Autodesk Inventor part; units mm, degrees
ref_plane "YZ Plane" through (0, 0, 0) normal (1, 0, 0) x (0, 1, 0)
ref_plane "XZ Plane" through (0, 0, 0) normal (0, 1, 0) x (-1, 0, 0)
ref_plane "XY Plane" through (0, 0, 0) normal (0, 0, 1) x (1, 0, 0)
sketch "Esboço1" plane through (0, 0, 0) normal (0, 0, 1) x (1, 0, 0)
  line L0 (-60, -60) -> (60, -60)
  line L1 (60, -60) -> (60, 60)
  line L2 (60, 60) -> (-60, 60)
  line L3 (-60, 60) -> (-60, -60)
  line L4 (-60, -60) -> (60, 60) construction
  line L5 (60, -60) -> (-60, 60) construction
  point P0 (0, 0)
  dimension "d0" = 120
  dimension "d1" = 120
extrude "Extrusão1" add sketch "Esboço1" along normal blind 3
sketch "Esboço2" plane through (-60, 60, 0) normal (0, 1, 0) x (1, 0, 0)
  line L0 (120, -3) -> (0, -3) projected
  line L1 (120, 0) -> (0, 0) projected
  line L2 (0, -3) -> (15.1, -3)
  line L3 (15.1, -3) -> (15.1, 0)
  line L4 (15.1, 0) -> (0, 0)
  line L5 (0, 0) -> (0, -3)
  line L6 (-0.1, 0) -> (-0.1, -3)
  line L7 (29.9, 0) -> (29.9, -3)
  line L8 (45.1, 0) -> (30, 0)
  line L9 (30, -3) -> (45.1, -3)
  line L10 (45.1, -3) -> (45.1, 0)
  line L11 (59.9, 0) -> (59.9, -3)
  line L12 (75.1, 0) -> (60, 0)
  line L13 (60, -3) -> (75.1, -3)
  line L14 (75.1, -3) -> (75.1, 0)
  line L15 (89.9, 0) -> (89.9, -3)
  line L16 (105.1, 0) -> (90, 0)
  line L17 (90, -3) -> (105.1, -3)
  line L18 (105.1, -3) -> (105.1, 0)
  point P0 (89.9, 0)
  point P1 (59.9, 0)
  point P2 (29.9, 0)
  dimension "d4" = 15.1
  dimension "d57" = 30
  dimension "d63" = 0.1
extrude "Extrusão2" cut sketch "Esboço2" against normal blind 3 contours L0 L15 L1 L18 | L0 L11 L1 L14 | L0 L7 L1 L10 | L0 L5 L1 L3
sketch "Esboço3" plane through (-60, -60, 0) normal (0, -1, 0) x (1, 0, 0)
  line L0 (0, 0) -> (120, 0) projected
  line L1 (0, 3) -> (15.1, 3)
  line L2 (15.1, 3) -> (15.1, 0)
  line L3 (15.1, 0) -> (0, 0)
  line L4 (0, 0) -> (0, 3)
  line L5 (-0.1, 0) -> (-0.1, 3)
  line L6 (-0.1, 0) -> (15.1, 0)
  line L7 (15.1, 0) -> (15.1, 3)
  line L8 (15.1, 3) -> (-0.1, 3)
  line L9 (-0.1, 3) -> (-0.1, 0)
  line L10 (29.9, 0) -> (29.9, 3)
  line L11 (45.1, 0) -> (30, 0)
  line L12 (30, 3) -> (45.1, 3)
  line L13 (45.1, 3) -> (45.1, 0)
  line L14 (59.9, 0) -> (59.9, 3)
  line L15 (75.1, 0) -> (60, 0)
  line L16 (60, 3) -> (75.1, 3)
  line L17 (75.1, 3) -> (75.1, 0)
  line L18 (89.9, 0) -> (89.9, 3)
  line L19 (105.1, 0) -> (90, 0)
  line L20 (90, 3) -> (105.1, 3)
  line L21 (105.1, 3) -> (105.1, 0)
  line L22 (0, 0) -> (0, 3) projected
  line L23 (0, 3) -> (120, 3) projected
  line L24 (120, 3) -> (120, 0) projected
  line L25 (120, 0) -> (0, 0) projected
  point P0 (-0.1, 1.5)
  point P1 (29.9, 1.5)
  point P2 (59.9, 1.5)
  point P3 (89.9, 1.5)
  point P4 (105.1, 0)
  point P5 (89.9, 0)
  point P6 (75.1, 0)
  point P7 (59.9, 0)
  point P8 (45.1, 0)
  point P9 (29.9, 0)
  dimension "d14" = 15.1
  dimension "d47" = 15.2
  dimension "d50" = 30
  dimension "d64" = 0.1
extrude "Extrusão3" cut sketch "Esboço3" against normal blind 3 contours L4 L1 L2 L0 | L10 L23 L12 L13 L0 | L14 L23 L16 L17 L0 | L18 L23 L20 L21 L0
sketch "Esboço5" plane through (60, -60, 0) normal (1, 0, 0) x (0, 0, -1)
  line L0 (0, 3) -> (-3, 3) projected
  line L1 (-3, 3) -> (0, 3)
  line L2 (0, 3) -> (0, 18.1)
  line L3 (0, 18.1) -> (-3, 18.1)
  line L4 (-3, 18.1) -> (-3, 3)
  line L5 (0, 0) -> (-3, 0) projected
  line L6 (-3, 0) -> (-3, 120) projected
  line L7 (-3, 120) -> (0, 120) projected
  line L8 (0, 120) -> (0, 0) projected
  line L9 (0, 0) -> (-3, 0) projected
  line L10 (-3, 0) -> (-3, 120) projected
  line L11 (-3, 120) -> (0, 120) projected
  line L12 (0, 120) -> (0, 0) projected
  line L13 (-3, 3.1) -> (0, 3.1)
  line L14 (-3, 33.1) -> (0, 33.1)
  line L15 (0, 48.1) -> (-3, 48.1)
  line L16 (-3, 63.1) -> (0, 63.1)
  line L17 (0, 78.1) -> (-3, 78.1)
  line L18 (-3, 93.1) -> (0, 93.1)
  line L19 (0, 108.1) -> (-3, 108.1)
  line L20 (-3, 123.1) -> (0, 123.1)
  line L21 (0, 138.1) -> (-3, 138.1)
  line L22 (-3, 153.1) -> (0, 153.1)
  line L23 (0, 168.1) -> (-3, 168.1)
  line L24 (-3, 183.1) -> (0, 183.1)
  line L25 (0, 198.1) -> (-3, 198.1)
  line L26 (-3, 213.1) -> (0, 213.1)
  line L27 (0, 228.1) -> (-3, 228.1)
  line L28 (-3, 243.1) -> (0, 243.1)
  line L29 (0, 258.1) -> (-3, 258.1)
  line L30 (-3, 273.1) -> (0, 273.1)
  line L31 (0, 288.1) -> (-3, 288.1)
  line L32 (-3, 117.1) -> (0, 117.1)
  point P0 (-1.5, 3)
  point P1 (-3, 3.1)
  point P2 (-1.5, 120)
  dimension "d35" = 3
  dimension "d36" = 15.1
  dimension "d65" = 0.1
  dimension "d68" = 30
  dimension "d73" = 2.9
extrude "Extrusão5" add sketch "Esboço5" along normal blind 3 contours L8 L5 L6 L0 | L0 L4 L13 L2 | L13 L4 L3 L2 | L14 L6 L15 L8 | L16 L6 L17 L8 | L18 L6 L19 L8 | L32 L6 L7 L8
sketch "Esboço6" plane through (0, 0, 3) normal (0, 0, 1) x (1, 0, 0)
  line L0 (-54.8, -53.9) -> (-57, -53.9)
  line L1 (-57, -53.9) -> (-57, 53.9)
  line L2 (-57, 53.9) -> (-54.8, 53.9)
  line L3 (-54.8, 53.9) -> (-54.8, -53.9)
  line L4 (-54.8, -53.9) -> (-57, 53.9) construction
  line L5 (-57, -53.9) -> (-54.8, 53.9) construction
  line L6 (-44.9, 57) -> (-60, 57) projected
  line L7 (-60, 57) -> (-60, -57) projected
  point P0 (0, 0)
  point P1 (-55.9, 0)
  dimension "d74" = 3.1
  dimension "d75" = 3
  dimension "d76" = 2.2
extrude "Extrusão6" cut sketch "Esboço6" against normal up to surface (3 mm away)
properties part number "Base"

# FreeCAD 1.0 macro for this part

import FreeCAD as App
import Part
import Sketcher

V = App.Vector
Q = App.Units.Quantity

doc = App.newDocument("Part")
body = doc.addObject("PartDesign::Body", "Body")

# Sketch on XY plane
sketch1 = body.newObject("Sketcher::SketchObject", "Sketch")
sketch1.AttachmentSupport = (doc.getObject("XY_Plane"), [""])
sketch1.MapMode = "FlatFace"
sketch1.addGeometry([
    Part.LineSegment(V(-60, 60, 0), V(-60, -60, 0)),
    Part.LineSegment(V(-60, -60, 0), V(60, -60, 0)),
    Part.LineSegment(V(60, -60, 0), V(60, 60, 0)),
    Part.LineSegment(V(60, 60, 0), V(-60, 60, 0)),
], False)
sketch1.addConstraint([
    Sketcher.Constraint("Coincident", 0, 2, 1, 1),
    Sketcher.Constraint("Coincident", 1, 2, 2, 1),
    Sketcher.Constraint("Coincident", 2, 2, 3, 1),
    Sketcher.Constraint("Coincident", 3, 2, 0, 1),
    Sketcher.Constraint("Vertical", 0),
    Sketcher.Constraint("Horizontal", 1),
    Sketcher.Constraint("Vertical", 2),
    Sketcher.Constraint("Horizontal", 3),
    Sketcher.Constraint("Symmetric", 0, 2, 2, 2, -1, 1),
    Sketcher.Constraint("Equal", 3, 0),
    Sketcher.Constraint("DistanceX", 1, 1, 1, 2, Q("120 mm")),
])
pad1 = body.newObject("PartDesign::Pad", "Pad")
pad1.Profile = sketch1
pad1.Length = 3

# Sketch on XZ plane
sketch2 = body.newObject("Sketcher::SketchObject", "Sketch001")
sketch2.AttachmentSupport = (doc.getObject("XZ_Plane"), [""])
sketch2.MapMode = "FlatFace"
sketch2.AttachmentOffset = App.Placement(V(0, 0, -60), App.Rotation())
sketch2.addGeometry([
    Part.LineSegment(V(29.9, 3, 0), V(45.1, 3, 0)),  # 0
    Part.LineSegment(V(45.1, 3, 0), V(45.1, 0, 0)),  # 1
    Part.LineSegment(V(45.1, 0, 0), V(29.9, 0, 0)),  # 2
    Part.LineSegment(V(29.9, 0, 0), V(29.9, 3, 0)),  # 3
    Part.LineSegment(V(-0.1, 3, 0), V(15.1, 3, 0)),  # 4
    Part.LineSegment(V(15.1, 3, 0), V(15.1, 0, 0)),  # 5
    Part.LineSegment(V(15.1, 0, 0), V(-0.1, 0, 0)),  # 6
    Part.LineSegment(V(-0.1, 0, 0), V(-0.1, 3, 0)),  # 7
    Part.LineSegment(V(-30.1, 3, 0), V(-14.9, 3, 0)),  # 8
    Part.LineSegment(V(-14.9, 3, 0), V(-14.9, 0, 0)),  # 9
    Part.LineSegment(V(-14.9, 0, 0), V(-30.1, 0, 0)),  # 10
    Part.LineSegment(V(-30.1, 0, 0), V(-30.1, 3, 0)),  # 11
    Part.LineSegment(V(-60, 3, 0), V(-44.9, 3, 0)),  # 12
    Part.LineSegment(V(-44.9, 3, 0), V(-44.9, 0, 0)),  # 13
    Part.LineSegment(V(-44.9, 0, 0), V(-60, 0, 0)),  # 14
    Part.LineSegment(V(-60, 0, 0), V(-60, 3, 0)),  # 15
], False)
sketch2.addConstraint([
    Sketcher.Constraint("Coincident", 0, 2, 1, 1),
    Sketcher.Constraint("Coincident", 1, 2, 2, 1),
    Sketcher.Constraint("Coincident", 2, 2, 3, 1),
    Sketcher.Constraint("Coincident", 3, 2, 0, 1),
    Sketcher.Constraint("Coincident", 4, 2, 5, 1),
    Sketcher.Constraint("Coincident", 5, 2, 6, 1),
    Sketcher.Constraint("Coincident", 6, 2, 7, 1),
    Sketcher.Constraint("Coincident", 7, 2, 4, 1),
    Sketcher.Constraint("Coincident", 8, 2, 9, 1),
    Sketcher.Constraint("Coincident", 9, 2, 10, 1),
    Sketcher.Constraint("Coincident", 10, 2, 11, 1),
    Sketcher.Constraint("Coincident", 11, 2, 8, 1),
    Sketcher.Constraint("Coincident", 12, 2, 13, 1),
    Sketcher.Constraint("Coincident", 13, 2, 14, 1),
    Sketcher.Constraint("Coincident", 14, 2, 15, 1),
    Sketcher.Constraint("Coincident", 15, 2, 12, 1),
    Sketcher.Constraint("Horizontal", 0),
    Sketcher.Constraint("Vertical", 1),
    Sketcher.Constraint("Horizontal", 2),
    Sketcher.Constraint("Vertical", 3),
    Sketcher.Constraint("Horizontal", 4),
    Sketcher.Constraint("Vertical", 5),
    Sketcher.Constraint("Horizontal", 6),
    Sketcher.Constraint("Vertical", 7),
    Sketcher.Constraint("Horizontal", 8),
    Sketcher.Constraint("Vertical", 9),
    Sketcher.Constraint("Horizontal", 10),
    Sketcher.Constraint("Vertical", 11),
    Sketcher.Constraint("Horizontal", 12),
    Sketcher.Constraint("Vertical", 13),
    Sketcher.Constraint("Horizontal", 14),
    Sketcher.Constraint("Vertical", 15),
    Sketcher.Constraint("PointOnObject", 1, 2, -1),
    Sketcher.Constraint("PointOnObject", 5, 2, -1),
    Sketcher.Constraint("PointOnObject", 9, 2, -1),
    Sketcher.Constraint("PointOnObject", 13, 2, -1),
    Sketcher.Constraint("Horizontal", 3, 2, 4, 2),
    Sketcher.Constraint("Horizontal", 7, 2, 8, 2),
    Sketcher.Constraint("Horizontal", 11, 2, 12, 2),
    Sketcher.Constraint("Equal", 2, 4),
    Sketcher.Constraint("Equal", 6, 8),
    Sketcher.Constraint("DistanceX", 12, 1, 12, 2, Q("15.1 mm")),
    Sketcher.Constraint("DistanceX", 4, 2, 0, 2, Q("30 mm")),
    Sketcher.Constraint("DistanceX", 8, 2, 4, 2, Q("30 mm")),
    Sketcher.Constraint("DistanceX", 12, 2, 8, 2, Q("30 mm")),
    Sketcher.Constraint("DistanceX", -1, 1, 4, 2, Q("15.1 mm")),
    Sketcher.Constraint("DistanceX", 6, 2, -1, 1, Q("0.1 mm")),
    Sketcher.Constraint("DistanceY", 1, 2, 1, 1, Q("3 mm")),
])
pocket1 = body.newObject("PartDesign::Pocket", "Pocket")
pocket1.Profile = sketch2
pocket1.Length = 3
pocket1.Reversed = True

# Sketch on XZ plane
sketch3 = body.newObject("Sketcher::SketchObject", "Sketch002")
sketch3.AttachmentSupport = (doc.getObject("XZ_Plane"), [""])
sketch3.MapMode = "FlatFace"
sketch3.AttachmentOffset = App.Placement(V(0, 0, 60), App.Rotation())
sketch3.addGeometry([
    Part.LineSegment(V(-60, 3, 0), V(-60, 0, 0)),  # 0
    Part.LineSegment(V(-60, 0, 0), V(-44.9, 0, 0)),  # 1
    Part.LineSegment(V(-44.9, 0, 0), V(-44.9, 3, 0)),  # 2
    Part.LineSegment(V(-44.9, 3, 0), V(-60, 3, 0)),  # 3
    Part.LineSegment(V(-30.1, 3, 0), V(-30.1, 0, 0)),  # 4
    Part.LineSegment(V(-30.1, 0, 0), V(-14.9, 0, 0)),  # 5
    Part.LineSegment(V(-14.9, 0, 0), V(-14.9, 3, 0)),  # 6
    Part.LineSegment(V(-14.9, 3, 0), V(-30.1, 3, 0)),  # 7
    Part.LineSegment(V(-0.1, 3, 0), V(-0.1, 0, 0)),  # 8
    Part.LineSegment(V(-0.1, 0, 0), V(15.1, 0, 0)),  # 9
    Part.LineSegment(V(15.1, 0, 0), V(15.1, 3, 0)),  # 10
    Part.LineSegment(V(15.1, 3, 0), V(-0.1, 3, 0)),  # 11
    Part.LineSegment(V(29.9, 3, 0), V(29.9, 0, 0)),  # 12
    Part.LineSegment(V(29.9, 0, 0), V(45.1, 0, 0)),  # 13
    Part.LineSegment(V(45.1, 0, 0), V(45.1, 3, 0)),  # 14
    Part.LineSegment(V(45.1, 3, 0), V(29.9, 3, 0)),  # 15
], False)
sketch3.addConstraint([
    Sketcher.Constraint("Coincident", 0, 2, 1, 1),
    Sketcher.Constraint("Coincident", 1, 2, 2, 1),
    Sketcher.Constraint("Coincident", 2, 2, 3, 1),
    Sketcher.Constraint("Coincident", 3, 2, 0, 1),
    Sketcher.Constraint("Coincident", 4, 2, 5, 1),
    Sketcher.Constraint("Coincident", 5, 2, 6, 1),
    Sketcher.Constraint("Coincident", 6, 2, 7, 1),
    Sketcher.Constraint("Coincident", 7, 2, 4, 1),
    Sketcher.Constraint("Coincident", 8, 2, 9, 1),
    Sketcher.Constraint("Coincident", 9, 2, 10, 1),
    Sketcher.Constraint("Coincident", 10, 2, 11, 1),
    Sketcher.Constraint("Coincident", 11, 2, 8, 1),
    Sketcher.Constraint("Coincident", 12, 2, 13, 1),
    Sketcher.Constraint("Coincident", 13, 2, 14, 1),
    Sketcher.Constraint("Coincident", 14, 2, 15, 1),
    Sketcher.Constraint("Coincident", 15, 2, 12, 1),
    Sketcher.Constraint("Vertical", 0),
    Sketcher.Constraint("Horizontal", 1),
    Sketcher.Constraint("Vertical", 2),
    Sketcher.Constraint("Horizontal", 3),
    Sketcher.Constraint("Vertical", 4),
    Sketcher.Constraint("Horizontal", 5),
    Sketcher.Constraint("Vertical", 6),
    Sketcher.Constraint("Horizontal", 7),
    Sketcher.Constraint("Vertical", 8),
    Sketcher.Constraint("Horizontal", 9),
    Sketcher.Constraint("Vertical", 10),
    Sketcher.Constraint("Horizontal", 11),
    Sketcher.Constraint("Vertical", 12),
    Sketcher.Constraint("Horizontal", 13),
    Sketcher.Constraint("Vertical", 14),
    Sketcher.Constraint("Horizontal", 15),
    Sketcher.Constraint("PointOnObject", 0, 2, -1),
    Sketcher.Constraint("PointOnObject", 4, 2, -1),
    Sketcher.Constraint("PointOnObject", 8, 2, -1),
    Sketcher.Constraint("PointOnObject", 12, 2, -1),
    Sketcher.Constraint("Horizontal", 3, 2, 6, 2),
    Sketcher.Constraint("Horizontal", 7, 2, 10, 2),
    Sketcher.Constraint("Horizontal", 11, 2, 14, 2),
    Sketcher.Constraint("Equal", 7, 9),
    Sketcher.Constraint("Equal", 11, 13),
    Sketcher.Constraint("DistanceX", 1, 1, 1, 2, Q("15.1 mm")),
    Sketcher.Constraint("DistanceX", 5, 1, 5, 2, Q("15.2 mm")),
    Sketcher.Constraint("DistanceX", 1, 2, 5, 2, Q("30 mm")),
    Sketcher.Constraint("DistanceX", 4, 2, 8, 2, Q("30 mm")),
    Sketcher.Constraint("DistanceX", 8, 2, 12, 2, Q("30 mm")),
    Sketcher.Constraint("DistanceX", 8, 2, -1, 1, Q("0.1 mm")),
    Sketcher.Constraint("DistanceY", 0, 2, 0, 1, Q("3 mm")),
])
pocket2 = body.newObject("PartDesign::Pocket", "Pocket001")
pocket2.Profile = sketch3
pocket2.Length = 3

# Sketch on YZ plane
sketch4 = body.newObject("Sketcher::SketchObject", "Sketch003")
sketch4.AttachmentSupport = (doc.getObject("YZ_Plane"), [""])
sketch4.MapMode = "FlatFace"
sketch4.AttachmentOffset = App.Placement(V(0, 0, 60), App.Rotation())
sketch4.addGeometry([
    Part.LineSegment(V(-60, 0, 0), V(-41.9, 0, 0)),  # 0
    Part.LineSegment(V(-41.9, 0, 0), V(-41.9, 3, 0)),  # 1
    Part.LineSegment(V(-41.9, 3, 0), V(-60, 3, 0)),  # 2
    Part.LineSegment(V(-60, 3, 0), V(-60, 0, 0)),  # 3
    Part.LineSegment(V(-26.9, 3, 0), V(-26.9, 0, 0)),  # 4
    Part.LineSegment(V(-26.9, 0, 0), V(-11.9, 0, 0)),  # 5
    Part.LineSegment(V(-11.9, 0, 0), V(-11.9, 3, 0)),  # 6
    Part.LineSegment(V(-11.9, 3, 0), V(-26.9, 3, 0)),  # 7
    Part.LineSegment(V(3.1, 3, 0), V(3.1, 0, 0)),  # 8
    Part.LineSegment(V(3.1, 0, 0), V(18.1, 0, 0)),  # 9
    Part.LineSegment(V(18.1, 0, 0), V(18.1, 3, 0)),  # 10
    Part.LineSegment(V(18.1, 3, 0), V(3.1, 3, 0)),  # 11
    Part.LineSegment(V(33.1, 3, 0), V(33.1, 0, 0)),  # 12
    Part.LineSegment(V(33.1, 0, 0), V(48.1, 0, 0)),  # 13
    Part.LineSegment(V(48.1, 0, 0), V(48.1, 3, 0)),  # 14
    Part.LineSegment(V(48.1, 3, 0), V(33.1, 3, 0)),  # 15
    Part.LineSegment(V(57.1, 3, 0), V(57.1, 0, 0)),  # 16
    Part.LineSegment(V(57.1, 0, 0), V(60, 0, 0)),  # 17
    Part.LineSegment(V(60, 0, 0), V(60, 3, 0)),  # 18
    Part.LineSegment(V(60, 3, 0), V(57.1, 3, 0)),  # 19
], False)
sketch4.addConstraint([
    Sketcher.Constraint("Coincident", 0, 2, 1, 1),
    Sketcher.Constraint("Coincident", 1, 2, 2, 1),
    Sketcher.Constraint("Coincident", 2, 2, 3, 1),
    Sketcher.Constraint("Coincident", 3, 2, 0, 1),
    Sketcher.Constraint("Coincident", 4, 2, 5, 1),
    Sketcher.Constraint("Coincident", 5, 2, 6, 1),
    Sketcher.Constraint("Coincident", 6, 2, 7, 1),
    Sketcher.Constraint("Coincident", 7, 2, 4, 1),
    Sketcher.Constraint("Coincident", 8, 2, 9, 1),
    Sketcher.Constraint("Coincident", 9, 2, 10, 1),
    Sketcher.Constraint("Coincident", 10, 2, 11, 1),
    Sketcher.Constraint("Coincident", 11, 2, 8, 1),
    Sketcher.Constraint("Coincident", 12, 2, 13, 1),
    Sketcher.Constraint("Coincident", 13, 2, 14, 1),
    Sketcher.Constraint("Coincident", 14, 2, 15, 1),
    Sketcher.Constraint("Coincident", 15, 2, 12, 1),
    Sketcher.Constraint("Coincident", 16, 2, 17, 1),
    Sketcher.Constraint("Coincident", 17, 2, 18, 1),
    Sketcher.Constraint("Coincident", 18, 2, 19, 1),
    Sketcher.Constraint("Coincident", 19, 2, 16, 1),
    Sketcher.Constraint("Horizontal", 0),
    Sketcher.Constraint("Vertical", 1),
    Sketcher.Constraint("Horizontal", 2),
    Sketcher.Constraint("Vertical", 3),
    Sketcher.Constraint("Vertical", 4),
    Sketcher.Constraint("Horizontal", 5),
    Sketcher.Constraint("Vertical", 6),
    Sketcher.Constraint("Horizontal", 7),
    Sketcher.Constraint("Vertical", 8),
    Sketcher.Constraint("Horizontal", 9),
    Sketcher.Constraint("Vertical", 10),
    Sketcher.Constraint("Horizontal", 11),
    Sketcher.Constraint("Vertical", 12),
    Sketcher.Constraint("Horizontal", 13),
    Sketcher.Constraint("Vertical", 14),
    Sketcher.Constraint("Horizontal", 15),
    Sketcher.Constraint("Vertical", 16),
    Sketcher.Constraint("Horizontal", 17),
    Sketcher.Constraint("Vertical", 18),
    Sketcher.Constraint("Horizontal", 19),
    Sketcher.Constraint("Symmetric", 3, 2, 17, 2, -1, 1),
    Sketcher.Constraint("PointOnObject", 0, 2, -1),
    Sketcher.Constraint("PointOnObject", 4, 2, -1),
    Sketcher.Constraint("PointOnObject", 8, 2, -1),
    Sketcher.Constraint("PointOnObject", 12, 2, -1),
    Sketcher.Constraint("Horizontal", 2, 2, 6, 2),
    Sketcher.Constraint("Horizontal", 7, 2, 10, 2),
    Sketcher.Constraint("Horizontal", 11, 2, 14, 2),
    Sketcher.Constraint("Horizontal", 15, 2, 18, 2),
    Sketcher.Constraint("Equal", 7, 9),
    Sketcher.Constraint("Equal", 11, 13),
    Sketcher.Constraint("DistanceY", 1, 1, 1, 2, Q("3 mm")),
    Sketcher.Constraint("DistanceX", 17, 1, 17, 2, Q("2.9 mm")),
    Sketcher.Constraint("DistanceX", 0, 2, 5, 2, Q("30 mm")),
    Sketcher.Constraint("DistanceX", 4, 2, 8, 2, Q("30 mm")),
    Sketcher.Constraint("DistanceX", 8, 2, 12, 2, Q("30 mm")),
    Sketcher.Constraint("DistanceX", 5, 1, 5, 2, Q("15 mm")),
    Sketcher.Constraint("DistanceX", 0, 1, 0, 2, Q("18.1 mm")),
    Sketcher.Constraint("DistanceX", 2, 2, -1, 1, Q("60 mm")),
])
pad2 = body.newObject("PartDesign::Pad", "Pad001")
pad2.Profile = sketch4
pad2.Length = 3

# Sketch on XY plane
sketch5 = body.newObject("Sketcher::SketchObject", "Sketch004")
sketch5.AttachmentSupport = (doc.getObject("XY_Plane"), [""])
sketch5.MapMode = "FlatFace"
sketch5.AttachmentOffset = App.Placement(V(0, 0, 3), App.Rotation())
sketch5.addGeometry([
    Part.LineSegment(V(-57, -53.9, 0), V(-54.8, -53.9, 0)),
    Part.LineSegment(V(-54.8, -53.9, 0), V(-54.8, 53.9, 0)),
    Part.LineSegment(V(-54.8, 53.9, 0), V(-57, 53.9, 0)),
    Part.LineSegment(V(-57, 53.9, 0), V(-57, -53.9, 0)),
], False)
sketch5.addConstraint([
    Sketcher.Constraint("Coincident", 0, 2, 1, 1),
    Sketcher.Constraint("Coincident", 1, 2, 2, 1),
    Sketcher.Constraint("Coincident", 2, 2, 3, 1),
    Sketcher.Constraint("Coincident", 3, 2, 0, 1),
    Sketcher.Constraint("Horizontal", 0),
    Sketcher.Constraint("Vertical", 1),
    Sketcher.Constraint("Horizontal", 2),
    Sketcher.Constraint("Vertical", 3),
    Sketcher.Constraint("DistanceX", 0, 1, 0, 2, Q("2.2 mm")),
    Sketcher.Constraint("DistanceY", 1, 1, 1, 2, Q("107.8 mm")),
    Sketcher.Constraint("DistanceX", 2, 2, -1, 1, Q("57 mm")),
    Sketcher.Constraint("DistanceY", 0, 2, -1, 1, Q("53.9 mm")),
])
pocket3 = body.newObject("PartDesign::Pocket", "Pocket002")
pocket3.Profile = sketch5
pocket3.Length = 3

doc.recompute()
